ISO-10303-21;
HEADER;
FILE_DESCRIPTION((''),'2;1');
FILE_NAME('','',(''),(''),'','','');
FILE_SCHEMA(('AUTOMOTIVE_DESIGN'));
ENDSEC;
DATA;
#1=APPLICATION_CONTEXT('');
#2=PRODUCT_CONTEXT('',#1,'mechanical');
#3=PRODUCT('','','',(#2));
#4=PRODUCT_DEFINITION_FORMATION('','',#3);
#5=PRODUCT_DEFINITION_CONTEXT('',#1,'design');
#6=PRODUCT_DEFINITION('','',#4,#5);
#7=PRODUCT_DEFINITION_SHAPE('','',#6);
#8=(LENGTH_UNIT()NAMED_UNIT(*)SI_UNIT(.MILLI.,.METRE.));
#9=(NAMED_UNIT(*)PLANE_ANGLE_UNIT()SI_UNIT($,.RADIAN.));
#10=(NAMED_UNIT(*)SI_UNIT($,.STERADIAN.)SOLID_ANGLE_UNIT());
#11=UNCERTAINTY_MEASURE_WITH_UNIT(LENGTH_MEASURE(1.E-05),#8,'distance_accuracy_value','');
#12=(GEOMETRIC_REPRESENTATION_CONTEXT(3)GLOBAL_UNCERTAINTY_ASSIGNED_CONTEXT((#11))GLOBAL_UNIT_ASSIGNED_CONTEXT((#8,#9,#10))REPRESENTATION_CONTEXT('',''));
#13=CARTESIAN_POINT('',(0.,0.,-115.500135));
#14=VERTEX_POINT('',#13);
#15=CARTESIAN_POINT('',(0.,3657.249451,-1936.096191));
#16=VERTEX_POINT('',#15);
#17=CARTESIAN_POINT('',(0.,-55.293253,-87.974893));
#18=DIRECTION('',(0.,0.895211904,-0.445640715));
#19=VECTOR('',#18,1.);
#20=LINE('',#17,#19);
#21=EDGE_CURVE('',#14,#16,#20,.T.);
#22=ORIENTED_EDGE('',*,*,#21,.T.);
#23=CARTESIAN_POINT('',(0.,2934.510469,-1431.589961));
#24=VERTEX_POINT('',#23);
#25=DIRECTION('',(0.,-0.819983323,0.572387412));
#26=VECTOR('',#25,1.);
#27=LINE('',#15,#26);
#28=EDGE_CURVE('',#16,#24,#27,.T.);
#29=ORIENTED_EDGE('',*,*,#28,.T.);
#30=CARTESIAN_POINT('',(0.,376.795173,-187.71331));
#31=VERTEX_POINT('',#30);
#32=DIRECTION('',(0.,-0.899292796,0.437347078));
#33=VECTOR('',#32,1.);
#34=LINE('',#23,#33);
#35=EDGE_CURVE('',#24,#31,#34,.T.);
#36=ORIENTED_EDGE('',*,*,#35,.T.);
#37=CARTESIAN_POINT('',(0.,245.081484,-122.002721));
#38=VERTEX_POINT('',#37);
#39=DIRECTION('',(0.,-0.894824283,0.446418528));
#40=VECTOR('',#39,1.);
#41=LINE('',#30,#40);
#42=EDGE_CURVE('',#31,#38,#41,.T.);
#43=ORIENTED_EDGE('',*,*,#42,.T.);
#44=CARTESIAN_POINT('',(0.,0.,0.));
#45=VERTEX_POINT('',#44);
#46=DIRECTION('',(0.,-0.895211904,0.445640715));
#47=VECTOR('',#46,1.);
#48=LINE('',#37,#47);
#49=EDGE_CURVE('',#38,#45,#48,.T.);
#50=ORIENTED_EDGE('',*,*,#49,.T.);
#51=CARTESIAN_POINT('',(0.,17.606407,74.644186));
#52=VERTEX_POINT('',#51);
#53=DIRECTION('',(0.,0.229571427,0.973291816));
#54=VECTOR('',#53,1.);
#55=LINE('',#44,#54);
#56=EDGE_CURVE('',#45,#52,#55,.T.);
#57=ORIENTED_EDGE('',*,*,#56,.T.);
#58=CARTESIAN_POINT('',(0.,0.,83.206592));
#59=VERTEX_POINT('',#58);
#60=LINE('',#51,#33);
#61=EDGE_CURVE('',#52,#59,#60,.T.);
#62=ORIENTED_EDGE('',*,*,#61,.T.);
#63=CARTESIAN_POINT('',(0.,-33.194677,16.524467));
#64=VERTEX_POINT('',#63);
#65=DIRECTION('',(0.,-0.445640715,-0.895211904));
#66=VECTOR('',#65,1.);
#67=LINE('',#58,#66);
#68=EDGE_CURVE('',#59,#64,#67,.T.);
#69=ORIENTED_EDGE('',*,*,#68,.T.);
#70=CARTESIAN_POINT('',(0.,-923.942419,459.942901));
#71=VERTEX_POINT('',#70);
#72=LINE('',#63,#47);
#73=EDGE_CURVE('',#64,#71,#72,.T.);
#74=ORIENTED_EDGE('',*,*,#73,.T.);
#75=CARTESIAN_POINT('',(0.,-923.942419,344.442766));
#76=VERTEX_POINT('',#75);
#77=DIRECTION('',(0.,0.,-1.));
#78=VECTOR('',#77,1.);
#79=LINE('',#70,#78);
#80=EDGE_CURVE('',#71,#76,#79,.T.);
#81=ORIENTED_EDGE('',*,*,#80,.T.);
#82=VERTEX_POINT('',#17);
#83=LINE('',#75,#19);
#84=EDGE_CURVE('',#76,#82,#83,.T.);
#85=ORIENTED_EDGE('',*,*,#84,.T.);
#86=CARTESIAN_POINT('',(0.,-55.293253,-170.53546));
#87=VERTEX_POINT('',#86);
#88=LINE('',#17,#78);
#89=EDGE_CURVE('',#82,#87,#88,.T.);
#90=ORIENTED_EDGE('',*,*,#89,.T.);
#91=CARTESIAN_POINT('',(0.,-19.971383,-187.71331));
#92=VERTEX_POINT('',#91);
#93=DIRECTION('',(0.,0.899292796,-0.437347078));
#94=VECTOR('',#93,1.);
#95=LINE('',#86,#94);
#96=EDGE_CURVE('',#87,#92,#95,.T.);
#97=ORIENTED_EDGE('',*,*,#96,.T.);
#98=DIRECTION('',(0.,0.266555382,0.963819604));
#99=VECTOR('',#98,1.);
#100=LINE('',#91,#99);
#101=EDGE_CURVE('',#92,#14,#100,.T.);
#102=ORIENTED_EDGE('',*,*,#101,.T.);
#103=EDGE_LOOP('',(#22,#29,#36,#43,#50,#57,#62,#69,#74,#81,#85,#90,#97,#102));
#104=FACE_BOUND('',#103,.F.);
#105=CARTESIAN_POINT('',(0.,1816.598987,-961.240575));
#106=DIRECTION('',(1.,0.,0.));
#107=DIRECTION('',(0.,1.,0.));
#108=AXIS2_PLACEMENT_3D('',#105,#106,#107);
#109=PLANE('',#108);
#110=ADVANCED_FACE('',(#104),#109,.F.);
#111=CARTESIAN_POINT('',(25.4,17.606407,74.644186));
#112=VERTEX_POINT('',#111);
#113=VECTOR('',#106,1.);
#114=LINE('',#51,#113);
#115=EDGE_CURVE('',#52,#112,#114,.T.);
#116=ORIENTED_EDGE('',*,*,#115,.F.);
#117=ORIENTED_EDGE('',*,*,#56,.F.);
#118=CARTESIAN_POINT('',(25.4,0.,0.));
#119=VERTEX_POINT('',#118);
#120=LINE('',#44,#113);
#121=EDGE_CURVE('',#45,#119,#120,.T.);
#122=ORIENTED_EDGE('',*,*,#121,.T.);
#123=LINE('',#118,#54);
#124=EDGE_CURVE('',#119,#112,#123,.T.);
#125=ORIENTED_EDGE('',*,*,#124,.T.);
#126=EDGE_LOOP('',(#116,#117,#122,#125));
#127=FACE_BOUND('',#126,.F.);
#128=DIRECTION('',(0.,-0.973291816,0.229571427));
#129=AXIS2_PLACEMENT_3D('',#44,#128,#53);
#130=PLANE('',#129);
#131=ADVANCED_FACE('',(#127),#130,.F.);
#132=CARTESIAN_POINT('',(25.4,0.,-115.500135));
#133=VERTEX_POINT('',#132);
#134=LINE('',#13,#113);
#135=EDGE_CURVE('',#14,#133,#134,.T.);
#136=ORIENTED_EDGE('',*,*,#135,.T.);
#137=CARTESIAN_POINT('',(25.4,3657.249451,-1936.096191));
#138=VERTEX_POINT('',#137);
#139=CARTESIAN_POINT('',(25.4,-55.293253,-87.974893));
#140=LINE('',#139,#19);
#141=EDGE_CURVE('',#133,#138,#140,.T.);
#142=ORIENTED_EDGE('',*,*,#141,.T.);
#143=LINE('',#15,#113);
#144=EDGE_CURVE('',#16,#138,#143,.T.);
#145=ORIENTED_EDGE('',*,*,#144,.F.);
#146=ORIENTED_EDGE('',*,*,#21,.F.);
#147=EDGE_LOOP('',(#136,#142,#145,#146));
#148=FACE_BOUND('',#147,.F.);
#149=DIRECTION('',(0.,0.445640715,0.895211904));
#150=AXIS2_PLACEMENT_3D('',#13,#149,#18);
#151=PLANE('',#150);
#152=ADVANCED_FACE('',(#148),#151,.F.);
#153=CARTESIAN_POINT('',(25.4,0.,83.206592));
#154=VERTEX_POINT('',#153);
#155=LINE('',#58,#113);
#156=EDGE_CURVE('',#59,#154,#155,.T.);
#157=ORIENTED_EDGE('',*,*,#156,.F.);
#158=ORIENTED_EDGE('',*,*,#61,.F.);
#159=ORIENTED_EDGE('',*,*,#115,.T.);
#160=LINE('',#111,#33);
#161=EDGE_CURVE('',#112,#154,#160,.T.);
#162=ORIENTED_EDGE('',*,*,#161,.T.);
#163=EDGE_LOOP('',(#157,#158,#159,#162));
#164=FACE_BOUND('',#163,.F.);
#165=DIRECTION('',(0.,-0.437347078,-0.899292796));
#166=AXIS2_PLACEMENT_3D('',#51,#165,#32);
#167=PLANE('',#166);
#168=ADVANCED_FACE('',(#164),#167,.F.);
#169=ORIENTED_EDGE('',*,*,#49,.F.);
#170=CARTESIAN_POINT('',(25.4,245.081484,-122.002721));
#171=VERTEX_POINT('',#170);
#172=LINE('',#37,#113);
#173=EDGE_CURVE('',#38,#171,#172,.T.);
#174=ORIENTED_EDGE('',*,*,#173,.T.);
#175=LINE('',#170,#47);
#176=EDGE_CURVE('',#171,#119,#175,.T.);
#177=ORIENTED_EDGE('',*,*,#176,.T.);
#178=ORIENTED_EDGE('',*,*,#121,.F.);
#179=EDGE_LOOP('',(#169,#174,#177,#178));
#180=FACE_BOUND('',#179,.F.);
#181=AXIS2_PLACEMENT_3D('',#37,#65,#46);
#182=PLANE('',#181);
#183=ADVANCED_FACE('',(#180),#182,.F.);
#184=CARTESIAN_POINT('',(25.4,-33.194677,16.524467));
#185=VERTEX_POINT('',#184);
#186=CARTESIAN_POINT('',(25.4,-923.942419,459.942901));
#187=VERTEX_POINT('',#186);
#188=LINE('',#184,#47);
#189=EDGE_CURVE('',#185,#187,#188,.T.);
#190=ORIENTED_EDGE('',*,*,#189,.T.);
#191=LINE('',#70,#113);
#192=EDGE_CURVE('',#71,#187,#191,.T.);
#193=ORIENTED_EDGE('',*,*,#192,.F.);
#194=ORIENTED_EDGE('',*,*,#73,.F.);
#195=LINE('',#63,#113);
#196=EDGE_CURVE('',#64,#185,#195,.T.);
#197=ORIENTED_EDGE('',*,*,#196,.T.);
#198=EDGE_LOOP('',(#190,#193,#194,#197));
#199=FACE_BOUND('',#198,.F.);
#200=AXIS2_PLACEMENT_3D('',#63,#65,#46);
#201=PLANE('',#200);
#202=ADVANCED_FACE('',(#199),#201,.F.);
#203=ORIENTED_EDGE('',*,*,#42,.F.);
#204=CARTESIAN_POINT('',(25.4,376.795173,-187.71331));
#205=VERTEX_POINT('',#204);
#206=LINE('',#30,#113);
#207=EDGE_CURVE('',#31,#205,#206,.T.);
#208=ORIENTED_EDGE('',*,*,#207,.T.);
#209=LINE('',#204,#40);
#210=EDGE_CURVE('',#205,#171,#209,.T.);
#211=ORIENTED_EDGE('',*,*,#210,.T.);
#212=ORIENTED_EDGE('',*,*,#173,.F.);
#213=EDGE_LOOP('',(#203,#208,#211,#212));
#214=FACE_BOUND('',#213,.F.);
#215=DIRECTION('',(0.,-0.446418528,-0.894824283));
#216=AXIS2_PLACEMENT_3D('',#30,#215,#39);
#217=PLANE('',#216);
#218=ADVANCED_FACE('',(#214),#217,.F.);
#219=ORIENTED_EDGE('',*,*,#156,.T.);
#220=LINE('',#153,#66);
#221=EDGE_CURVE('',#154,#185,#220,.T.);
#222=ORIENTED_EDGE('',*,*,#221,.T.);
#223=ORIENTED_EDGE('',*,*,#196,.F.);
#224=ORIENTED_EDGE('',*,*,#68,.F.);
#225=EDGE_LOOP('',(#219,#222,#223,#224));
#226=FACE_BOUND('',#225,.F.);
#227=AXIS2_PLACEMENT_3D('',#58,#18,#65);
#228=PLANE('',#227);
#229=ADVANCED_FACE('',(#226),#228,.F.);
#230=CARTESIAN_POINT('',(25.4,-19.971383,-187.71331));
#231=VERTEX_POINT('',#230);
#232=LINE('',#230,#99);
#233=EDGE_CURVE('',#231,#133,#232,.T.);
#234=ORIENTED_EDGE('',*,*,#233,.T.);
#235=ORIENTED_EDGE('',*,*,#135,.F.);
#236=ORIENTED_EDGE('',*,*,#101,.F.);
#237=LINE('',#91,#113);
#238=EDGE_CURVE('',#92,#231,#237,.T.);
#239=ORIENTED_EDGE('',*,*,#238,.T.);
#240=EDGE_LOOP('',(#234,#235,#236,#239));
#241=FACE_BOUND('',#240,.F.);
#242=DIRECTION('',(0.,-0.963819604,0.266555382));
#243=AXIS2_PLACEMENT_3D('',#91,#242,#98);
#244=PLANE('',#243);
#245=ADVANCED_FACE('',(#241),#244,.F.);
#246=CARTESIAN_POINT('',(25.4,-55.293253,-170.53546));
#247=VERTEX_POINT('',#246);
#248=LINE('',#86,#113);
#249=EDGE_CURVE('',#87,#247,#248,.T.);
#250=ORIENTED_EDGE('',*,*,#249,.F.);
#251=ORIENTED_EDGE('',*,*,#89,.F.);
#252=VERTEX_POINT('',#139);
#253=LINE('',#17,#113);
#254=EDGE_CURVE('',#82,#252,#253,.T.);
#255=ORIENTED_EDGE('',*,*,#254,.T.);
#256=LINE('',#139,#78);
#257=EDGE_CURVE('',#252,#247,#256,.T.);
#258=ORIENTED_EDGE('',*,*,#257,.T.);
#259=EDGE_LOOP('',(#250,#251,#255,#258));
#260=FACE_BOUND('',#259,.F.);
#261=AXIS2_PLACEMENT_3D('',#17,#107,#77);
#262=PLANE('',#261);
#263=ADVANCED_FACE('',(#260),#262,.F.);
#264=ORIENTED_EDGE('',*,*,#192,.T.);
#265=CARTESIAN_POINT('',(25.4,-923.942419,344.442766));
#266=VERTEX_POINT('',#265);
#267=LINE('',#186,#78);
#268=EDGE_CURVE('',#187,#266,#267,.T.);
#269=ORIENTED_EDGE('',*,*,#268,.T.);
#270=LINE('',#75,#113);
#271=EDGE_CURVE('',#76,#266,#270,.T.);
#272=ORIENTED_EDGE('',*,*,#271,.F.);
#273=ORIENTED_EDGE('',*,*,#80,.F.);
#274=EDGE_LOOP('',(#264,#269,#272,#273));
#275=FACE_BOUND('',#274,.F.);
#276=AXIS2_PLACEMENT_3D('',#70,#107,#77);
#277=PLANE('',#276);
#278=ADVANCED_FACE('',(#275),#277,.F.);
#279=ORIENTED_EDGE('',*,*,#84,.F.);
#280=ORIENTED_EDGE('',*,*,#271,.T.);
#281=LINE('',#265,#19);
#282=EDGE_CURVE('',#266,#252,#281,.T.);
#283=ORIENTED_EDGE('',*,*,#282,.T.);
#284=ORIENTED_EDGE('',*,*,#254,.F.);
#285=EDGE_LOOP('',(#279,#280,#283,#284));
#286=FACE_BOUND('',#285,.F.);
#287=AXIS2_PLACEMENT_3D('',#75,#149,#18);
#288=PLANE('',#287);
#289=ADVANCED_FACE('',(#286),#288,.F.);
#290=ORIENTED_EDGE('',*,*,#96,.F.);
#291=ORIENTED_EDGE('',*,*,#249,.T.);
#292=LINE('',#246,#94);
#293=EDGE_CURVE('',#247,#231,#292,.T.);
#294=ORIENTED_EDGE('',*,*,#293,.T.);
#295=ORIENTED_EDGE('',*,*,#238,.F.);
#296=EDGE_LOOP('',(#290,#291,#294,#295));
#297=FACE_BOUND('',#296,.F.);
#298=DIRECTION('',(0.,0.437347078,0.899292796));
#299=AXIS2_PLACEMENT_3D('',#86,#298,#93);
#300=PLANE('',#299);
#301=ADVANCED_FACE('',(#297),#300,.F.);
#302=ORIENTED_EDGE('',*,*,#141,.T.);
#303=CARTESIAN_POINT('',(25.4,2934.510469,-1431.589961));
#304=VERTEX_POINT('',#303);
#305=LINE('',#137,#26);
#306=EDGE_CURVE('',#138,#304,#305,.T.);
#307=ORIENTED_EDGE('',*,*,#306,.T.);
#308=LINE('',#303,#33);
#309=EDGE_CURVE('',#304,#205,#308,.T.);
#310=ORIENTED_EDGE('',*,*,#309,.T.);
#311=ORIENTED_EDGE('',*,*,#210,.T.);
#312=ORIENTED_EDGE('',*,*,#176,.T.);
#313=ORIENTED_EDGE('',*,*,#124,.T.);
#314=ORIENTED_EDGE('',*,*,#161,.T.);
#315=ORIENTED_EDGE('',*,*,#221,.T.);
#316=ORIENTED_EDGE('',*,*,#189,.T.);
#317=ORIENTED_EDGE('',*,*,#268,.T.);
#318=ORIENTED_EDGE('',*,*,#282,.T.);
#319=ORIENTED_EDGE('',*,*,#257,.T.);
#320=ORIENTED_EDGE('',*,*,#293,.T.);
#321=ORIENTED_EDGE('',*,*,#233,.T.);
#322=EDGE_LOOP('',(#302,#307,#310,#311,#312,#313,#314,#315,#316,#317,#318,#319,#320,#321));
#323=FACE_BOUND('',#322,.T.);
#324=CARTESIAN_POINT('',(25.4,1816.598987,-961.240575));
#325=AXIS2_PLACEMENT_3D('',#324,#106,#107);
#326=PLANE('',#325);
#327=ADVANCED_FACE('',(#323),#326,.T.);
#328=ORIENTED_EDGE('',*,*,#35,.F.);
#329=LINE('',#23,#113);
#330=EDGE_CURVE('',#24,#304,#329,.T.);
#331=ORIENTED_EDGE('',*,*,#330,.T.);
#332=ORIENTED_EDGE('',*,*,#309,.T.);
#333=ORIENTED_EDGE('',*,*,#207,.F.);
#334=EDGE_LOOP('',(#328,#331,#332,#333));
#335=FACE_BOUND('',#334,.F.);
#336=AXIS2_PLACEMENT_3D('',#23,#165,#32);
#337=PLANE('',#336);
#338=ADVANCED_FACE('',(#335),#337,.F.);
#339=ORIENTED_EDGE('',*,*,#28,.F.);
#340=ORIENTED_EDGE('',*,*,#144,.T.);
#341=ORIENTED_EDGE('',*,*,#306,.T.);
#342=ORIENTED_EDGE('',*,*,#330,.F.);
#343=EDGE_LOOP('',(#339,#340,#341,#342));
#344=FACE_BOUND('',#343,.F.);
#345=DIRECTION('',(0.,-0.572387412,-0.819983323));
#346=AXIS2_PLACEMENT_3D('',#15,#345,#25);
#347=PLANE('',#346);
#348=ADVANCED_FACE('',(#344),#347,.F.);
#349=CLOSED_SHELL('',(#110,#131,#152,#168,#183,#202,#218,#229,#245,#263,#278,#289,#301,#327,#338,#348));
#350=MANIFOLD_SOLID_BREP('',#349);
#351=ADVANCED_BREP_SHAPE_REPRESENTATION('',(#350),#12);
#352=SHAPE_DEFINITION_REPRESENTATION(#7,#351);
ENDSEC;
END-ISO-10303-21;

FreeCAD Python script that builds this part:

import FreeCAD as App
import Part
import Sketcher
from FreeCAD import Vector
Q = App.Units.Quantity


def add_polygon(sketch, points):
    """Adds a closed chain of lines whose ends are joined by coincident constraints."""
    first, n = sketch.GeometryCount, len(points)
    for a, b in zip(points, points[1:] + points[:1]):
        sketch.addGeometry(Part.LineSegment(App.Vector(*a, 0), App.Vector(*b, 0)), False)
    for i in range(n):
        sketch.addConstraint(Sketcher.Constraint("Coincident", first + i, 2, first + (i + 1) % n, 1))

doc = App.newDocument("Part")
body = doc.addObject("PartDesign::Body", "Body")

sketch1 = body.newObject("Sketcher::SketchObject", "Sketch")
sketch1.AttachmentSupport = (doc.getObject("YZ_Plane"), [""])
sketch1.MapMode = "FlatFace"
add_polygon(sketch1, [(245, -122), (0, 0), (18, 75), (0, 83), (-33, 17), (-924, 460), (-924, 344), (-55, -88), (-55, -171), (-20, -188), (0, -116), (3657, -1936), (2935, -1432), (377, -188)])
sketch1.addConstraint([
    Sketcher.Constraint("Vertical", 5),
    Sketcher.Constraint("Vertical", 7),
    Sketcher.Constraint("Coincident", 0, 2, -1, 1),
    Sketcher.Constraint("PointOnObject", 2, 2, -2),
    Sketcher.Constraint("PointOnObject", 9, 2, -2),
    Sketcher.Constraint("Perpendicular", 0, 3),
    Sketcher.Constraint("Perpendicular", 3, 4),
    Sketcher.Constraint("Parallel", 4, 6),
    Sketcher.Constraint("Parallel", 2, 8),
    Sketcher.Constraint("Parallel", 6, 10),
    Sketcher.Constraint("Parallel", 8, 12),
    Sketcher.Constraint("Horizontal", 8, 2, 12, 2),
    Sketcher.Constraint("DistanceY", -1, 1, 4, 2, Q("459.942901 mm")),
    Sketcher.Constraint("DistanceY", 3, 2, 5, 2, Q("327.918299 mm")),
    Sketcher.Constraint("DistanceY", 10, 2, 6, 2, Q("1848.121299 mm")),
    Sketcher.Constraint("DistanceY", 11, 2, 7, 2, Q("1261.054501 mm")),
    Sketcher.Constraint("Distance", 0, Q("273.769242 mm")),
    Sketcher.Constraint("Distance", 2, Q("19.578059 mm")),
    Sketcher.Constraint("Distance", 4, Q("995.01329 mm")),
    Sketcher.Constraint("Distance", 6, Q("970.327988 mm")),
    Sketcher.Constraint("Distance", 12, Q("2844.14076 mm")),
    Sketcher.Constraint("Distance", 13, Q("147.195031 mm")),
    Sketcher.Constraint("DistanceY", 5, 2, 5, 1, Q("115.500135 mm")),
    Sketcher.Constraint("DistanceY", 7, 2, 7, 1, Q("82.560567 mm")),
    Sketcher.Constraint("DistanceX", 4, 2, -1, 1, Q("923.942419 mm")),
    Sketcher.Constraint("DistanceY", 8, 2, -1, 1, Q("187.71331 mm")),
    Sketcher.Constraint("DistanceX", -1, 1, 10, 2, Q("3657.249451 mm")),
])
pad1 = body.newObject("PartDesign::Pad", "Pad")
pad1.Profile = sketch1
pad1.Length = Q("1 in")

doc.recompute()
